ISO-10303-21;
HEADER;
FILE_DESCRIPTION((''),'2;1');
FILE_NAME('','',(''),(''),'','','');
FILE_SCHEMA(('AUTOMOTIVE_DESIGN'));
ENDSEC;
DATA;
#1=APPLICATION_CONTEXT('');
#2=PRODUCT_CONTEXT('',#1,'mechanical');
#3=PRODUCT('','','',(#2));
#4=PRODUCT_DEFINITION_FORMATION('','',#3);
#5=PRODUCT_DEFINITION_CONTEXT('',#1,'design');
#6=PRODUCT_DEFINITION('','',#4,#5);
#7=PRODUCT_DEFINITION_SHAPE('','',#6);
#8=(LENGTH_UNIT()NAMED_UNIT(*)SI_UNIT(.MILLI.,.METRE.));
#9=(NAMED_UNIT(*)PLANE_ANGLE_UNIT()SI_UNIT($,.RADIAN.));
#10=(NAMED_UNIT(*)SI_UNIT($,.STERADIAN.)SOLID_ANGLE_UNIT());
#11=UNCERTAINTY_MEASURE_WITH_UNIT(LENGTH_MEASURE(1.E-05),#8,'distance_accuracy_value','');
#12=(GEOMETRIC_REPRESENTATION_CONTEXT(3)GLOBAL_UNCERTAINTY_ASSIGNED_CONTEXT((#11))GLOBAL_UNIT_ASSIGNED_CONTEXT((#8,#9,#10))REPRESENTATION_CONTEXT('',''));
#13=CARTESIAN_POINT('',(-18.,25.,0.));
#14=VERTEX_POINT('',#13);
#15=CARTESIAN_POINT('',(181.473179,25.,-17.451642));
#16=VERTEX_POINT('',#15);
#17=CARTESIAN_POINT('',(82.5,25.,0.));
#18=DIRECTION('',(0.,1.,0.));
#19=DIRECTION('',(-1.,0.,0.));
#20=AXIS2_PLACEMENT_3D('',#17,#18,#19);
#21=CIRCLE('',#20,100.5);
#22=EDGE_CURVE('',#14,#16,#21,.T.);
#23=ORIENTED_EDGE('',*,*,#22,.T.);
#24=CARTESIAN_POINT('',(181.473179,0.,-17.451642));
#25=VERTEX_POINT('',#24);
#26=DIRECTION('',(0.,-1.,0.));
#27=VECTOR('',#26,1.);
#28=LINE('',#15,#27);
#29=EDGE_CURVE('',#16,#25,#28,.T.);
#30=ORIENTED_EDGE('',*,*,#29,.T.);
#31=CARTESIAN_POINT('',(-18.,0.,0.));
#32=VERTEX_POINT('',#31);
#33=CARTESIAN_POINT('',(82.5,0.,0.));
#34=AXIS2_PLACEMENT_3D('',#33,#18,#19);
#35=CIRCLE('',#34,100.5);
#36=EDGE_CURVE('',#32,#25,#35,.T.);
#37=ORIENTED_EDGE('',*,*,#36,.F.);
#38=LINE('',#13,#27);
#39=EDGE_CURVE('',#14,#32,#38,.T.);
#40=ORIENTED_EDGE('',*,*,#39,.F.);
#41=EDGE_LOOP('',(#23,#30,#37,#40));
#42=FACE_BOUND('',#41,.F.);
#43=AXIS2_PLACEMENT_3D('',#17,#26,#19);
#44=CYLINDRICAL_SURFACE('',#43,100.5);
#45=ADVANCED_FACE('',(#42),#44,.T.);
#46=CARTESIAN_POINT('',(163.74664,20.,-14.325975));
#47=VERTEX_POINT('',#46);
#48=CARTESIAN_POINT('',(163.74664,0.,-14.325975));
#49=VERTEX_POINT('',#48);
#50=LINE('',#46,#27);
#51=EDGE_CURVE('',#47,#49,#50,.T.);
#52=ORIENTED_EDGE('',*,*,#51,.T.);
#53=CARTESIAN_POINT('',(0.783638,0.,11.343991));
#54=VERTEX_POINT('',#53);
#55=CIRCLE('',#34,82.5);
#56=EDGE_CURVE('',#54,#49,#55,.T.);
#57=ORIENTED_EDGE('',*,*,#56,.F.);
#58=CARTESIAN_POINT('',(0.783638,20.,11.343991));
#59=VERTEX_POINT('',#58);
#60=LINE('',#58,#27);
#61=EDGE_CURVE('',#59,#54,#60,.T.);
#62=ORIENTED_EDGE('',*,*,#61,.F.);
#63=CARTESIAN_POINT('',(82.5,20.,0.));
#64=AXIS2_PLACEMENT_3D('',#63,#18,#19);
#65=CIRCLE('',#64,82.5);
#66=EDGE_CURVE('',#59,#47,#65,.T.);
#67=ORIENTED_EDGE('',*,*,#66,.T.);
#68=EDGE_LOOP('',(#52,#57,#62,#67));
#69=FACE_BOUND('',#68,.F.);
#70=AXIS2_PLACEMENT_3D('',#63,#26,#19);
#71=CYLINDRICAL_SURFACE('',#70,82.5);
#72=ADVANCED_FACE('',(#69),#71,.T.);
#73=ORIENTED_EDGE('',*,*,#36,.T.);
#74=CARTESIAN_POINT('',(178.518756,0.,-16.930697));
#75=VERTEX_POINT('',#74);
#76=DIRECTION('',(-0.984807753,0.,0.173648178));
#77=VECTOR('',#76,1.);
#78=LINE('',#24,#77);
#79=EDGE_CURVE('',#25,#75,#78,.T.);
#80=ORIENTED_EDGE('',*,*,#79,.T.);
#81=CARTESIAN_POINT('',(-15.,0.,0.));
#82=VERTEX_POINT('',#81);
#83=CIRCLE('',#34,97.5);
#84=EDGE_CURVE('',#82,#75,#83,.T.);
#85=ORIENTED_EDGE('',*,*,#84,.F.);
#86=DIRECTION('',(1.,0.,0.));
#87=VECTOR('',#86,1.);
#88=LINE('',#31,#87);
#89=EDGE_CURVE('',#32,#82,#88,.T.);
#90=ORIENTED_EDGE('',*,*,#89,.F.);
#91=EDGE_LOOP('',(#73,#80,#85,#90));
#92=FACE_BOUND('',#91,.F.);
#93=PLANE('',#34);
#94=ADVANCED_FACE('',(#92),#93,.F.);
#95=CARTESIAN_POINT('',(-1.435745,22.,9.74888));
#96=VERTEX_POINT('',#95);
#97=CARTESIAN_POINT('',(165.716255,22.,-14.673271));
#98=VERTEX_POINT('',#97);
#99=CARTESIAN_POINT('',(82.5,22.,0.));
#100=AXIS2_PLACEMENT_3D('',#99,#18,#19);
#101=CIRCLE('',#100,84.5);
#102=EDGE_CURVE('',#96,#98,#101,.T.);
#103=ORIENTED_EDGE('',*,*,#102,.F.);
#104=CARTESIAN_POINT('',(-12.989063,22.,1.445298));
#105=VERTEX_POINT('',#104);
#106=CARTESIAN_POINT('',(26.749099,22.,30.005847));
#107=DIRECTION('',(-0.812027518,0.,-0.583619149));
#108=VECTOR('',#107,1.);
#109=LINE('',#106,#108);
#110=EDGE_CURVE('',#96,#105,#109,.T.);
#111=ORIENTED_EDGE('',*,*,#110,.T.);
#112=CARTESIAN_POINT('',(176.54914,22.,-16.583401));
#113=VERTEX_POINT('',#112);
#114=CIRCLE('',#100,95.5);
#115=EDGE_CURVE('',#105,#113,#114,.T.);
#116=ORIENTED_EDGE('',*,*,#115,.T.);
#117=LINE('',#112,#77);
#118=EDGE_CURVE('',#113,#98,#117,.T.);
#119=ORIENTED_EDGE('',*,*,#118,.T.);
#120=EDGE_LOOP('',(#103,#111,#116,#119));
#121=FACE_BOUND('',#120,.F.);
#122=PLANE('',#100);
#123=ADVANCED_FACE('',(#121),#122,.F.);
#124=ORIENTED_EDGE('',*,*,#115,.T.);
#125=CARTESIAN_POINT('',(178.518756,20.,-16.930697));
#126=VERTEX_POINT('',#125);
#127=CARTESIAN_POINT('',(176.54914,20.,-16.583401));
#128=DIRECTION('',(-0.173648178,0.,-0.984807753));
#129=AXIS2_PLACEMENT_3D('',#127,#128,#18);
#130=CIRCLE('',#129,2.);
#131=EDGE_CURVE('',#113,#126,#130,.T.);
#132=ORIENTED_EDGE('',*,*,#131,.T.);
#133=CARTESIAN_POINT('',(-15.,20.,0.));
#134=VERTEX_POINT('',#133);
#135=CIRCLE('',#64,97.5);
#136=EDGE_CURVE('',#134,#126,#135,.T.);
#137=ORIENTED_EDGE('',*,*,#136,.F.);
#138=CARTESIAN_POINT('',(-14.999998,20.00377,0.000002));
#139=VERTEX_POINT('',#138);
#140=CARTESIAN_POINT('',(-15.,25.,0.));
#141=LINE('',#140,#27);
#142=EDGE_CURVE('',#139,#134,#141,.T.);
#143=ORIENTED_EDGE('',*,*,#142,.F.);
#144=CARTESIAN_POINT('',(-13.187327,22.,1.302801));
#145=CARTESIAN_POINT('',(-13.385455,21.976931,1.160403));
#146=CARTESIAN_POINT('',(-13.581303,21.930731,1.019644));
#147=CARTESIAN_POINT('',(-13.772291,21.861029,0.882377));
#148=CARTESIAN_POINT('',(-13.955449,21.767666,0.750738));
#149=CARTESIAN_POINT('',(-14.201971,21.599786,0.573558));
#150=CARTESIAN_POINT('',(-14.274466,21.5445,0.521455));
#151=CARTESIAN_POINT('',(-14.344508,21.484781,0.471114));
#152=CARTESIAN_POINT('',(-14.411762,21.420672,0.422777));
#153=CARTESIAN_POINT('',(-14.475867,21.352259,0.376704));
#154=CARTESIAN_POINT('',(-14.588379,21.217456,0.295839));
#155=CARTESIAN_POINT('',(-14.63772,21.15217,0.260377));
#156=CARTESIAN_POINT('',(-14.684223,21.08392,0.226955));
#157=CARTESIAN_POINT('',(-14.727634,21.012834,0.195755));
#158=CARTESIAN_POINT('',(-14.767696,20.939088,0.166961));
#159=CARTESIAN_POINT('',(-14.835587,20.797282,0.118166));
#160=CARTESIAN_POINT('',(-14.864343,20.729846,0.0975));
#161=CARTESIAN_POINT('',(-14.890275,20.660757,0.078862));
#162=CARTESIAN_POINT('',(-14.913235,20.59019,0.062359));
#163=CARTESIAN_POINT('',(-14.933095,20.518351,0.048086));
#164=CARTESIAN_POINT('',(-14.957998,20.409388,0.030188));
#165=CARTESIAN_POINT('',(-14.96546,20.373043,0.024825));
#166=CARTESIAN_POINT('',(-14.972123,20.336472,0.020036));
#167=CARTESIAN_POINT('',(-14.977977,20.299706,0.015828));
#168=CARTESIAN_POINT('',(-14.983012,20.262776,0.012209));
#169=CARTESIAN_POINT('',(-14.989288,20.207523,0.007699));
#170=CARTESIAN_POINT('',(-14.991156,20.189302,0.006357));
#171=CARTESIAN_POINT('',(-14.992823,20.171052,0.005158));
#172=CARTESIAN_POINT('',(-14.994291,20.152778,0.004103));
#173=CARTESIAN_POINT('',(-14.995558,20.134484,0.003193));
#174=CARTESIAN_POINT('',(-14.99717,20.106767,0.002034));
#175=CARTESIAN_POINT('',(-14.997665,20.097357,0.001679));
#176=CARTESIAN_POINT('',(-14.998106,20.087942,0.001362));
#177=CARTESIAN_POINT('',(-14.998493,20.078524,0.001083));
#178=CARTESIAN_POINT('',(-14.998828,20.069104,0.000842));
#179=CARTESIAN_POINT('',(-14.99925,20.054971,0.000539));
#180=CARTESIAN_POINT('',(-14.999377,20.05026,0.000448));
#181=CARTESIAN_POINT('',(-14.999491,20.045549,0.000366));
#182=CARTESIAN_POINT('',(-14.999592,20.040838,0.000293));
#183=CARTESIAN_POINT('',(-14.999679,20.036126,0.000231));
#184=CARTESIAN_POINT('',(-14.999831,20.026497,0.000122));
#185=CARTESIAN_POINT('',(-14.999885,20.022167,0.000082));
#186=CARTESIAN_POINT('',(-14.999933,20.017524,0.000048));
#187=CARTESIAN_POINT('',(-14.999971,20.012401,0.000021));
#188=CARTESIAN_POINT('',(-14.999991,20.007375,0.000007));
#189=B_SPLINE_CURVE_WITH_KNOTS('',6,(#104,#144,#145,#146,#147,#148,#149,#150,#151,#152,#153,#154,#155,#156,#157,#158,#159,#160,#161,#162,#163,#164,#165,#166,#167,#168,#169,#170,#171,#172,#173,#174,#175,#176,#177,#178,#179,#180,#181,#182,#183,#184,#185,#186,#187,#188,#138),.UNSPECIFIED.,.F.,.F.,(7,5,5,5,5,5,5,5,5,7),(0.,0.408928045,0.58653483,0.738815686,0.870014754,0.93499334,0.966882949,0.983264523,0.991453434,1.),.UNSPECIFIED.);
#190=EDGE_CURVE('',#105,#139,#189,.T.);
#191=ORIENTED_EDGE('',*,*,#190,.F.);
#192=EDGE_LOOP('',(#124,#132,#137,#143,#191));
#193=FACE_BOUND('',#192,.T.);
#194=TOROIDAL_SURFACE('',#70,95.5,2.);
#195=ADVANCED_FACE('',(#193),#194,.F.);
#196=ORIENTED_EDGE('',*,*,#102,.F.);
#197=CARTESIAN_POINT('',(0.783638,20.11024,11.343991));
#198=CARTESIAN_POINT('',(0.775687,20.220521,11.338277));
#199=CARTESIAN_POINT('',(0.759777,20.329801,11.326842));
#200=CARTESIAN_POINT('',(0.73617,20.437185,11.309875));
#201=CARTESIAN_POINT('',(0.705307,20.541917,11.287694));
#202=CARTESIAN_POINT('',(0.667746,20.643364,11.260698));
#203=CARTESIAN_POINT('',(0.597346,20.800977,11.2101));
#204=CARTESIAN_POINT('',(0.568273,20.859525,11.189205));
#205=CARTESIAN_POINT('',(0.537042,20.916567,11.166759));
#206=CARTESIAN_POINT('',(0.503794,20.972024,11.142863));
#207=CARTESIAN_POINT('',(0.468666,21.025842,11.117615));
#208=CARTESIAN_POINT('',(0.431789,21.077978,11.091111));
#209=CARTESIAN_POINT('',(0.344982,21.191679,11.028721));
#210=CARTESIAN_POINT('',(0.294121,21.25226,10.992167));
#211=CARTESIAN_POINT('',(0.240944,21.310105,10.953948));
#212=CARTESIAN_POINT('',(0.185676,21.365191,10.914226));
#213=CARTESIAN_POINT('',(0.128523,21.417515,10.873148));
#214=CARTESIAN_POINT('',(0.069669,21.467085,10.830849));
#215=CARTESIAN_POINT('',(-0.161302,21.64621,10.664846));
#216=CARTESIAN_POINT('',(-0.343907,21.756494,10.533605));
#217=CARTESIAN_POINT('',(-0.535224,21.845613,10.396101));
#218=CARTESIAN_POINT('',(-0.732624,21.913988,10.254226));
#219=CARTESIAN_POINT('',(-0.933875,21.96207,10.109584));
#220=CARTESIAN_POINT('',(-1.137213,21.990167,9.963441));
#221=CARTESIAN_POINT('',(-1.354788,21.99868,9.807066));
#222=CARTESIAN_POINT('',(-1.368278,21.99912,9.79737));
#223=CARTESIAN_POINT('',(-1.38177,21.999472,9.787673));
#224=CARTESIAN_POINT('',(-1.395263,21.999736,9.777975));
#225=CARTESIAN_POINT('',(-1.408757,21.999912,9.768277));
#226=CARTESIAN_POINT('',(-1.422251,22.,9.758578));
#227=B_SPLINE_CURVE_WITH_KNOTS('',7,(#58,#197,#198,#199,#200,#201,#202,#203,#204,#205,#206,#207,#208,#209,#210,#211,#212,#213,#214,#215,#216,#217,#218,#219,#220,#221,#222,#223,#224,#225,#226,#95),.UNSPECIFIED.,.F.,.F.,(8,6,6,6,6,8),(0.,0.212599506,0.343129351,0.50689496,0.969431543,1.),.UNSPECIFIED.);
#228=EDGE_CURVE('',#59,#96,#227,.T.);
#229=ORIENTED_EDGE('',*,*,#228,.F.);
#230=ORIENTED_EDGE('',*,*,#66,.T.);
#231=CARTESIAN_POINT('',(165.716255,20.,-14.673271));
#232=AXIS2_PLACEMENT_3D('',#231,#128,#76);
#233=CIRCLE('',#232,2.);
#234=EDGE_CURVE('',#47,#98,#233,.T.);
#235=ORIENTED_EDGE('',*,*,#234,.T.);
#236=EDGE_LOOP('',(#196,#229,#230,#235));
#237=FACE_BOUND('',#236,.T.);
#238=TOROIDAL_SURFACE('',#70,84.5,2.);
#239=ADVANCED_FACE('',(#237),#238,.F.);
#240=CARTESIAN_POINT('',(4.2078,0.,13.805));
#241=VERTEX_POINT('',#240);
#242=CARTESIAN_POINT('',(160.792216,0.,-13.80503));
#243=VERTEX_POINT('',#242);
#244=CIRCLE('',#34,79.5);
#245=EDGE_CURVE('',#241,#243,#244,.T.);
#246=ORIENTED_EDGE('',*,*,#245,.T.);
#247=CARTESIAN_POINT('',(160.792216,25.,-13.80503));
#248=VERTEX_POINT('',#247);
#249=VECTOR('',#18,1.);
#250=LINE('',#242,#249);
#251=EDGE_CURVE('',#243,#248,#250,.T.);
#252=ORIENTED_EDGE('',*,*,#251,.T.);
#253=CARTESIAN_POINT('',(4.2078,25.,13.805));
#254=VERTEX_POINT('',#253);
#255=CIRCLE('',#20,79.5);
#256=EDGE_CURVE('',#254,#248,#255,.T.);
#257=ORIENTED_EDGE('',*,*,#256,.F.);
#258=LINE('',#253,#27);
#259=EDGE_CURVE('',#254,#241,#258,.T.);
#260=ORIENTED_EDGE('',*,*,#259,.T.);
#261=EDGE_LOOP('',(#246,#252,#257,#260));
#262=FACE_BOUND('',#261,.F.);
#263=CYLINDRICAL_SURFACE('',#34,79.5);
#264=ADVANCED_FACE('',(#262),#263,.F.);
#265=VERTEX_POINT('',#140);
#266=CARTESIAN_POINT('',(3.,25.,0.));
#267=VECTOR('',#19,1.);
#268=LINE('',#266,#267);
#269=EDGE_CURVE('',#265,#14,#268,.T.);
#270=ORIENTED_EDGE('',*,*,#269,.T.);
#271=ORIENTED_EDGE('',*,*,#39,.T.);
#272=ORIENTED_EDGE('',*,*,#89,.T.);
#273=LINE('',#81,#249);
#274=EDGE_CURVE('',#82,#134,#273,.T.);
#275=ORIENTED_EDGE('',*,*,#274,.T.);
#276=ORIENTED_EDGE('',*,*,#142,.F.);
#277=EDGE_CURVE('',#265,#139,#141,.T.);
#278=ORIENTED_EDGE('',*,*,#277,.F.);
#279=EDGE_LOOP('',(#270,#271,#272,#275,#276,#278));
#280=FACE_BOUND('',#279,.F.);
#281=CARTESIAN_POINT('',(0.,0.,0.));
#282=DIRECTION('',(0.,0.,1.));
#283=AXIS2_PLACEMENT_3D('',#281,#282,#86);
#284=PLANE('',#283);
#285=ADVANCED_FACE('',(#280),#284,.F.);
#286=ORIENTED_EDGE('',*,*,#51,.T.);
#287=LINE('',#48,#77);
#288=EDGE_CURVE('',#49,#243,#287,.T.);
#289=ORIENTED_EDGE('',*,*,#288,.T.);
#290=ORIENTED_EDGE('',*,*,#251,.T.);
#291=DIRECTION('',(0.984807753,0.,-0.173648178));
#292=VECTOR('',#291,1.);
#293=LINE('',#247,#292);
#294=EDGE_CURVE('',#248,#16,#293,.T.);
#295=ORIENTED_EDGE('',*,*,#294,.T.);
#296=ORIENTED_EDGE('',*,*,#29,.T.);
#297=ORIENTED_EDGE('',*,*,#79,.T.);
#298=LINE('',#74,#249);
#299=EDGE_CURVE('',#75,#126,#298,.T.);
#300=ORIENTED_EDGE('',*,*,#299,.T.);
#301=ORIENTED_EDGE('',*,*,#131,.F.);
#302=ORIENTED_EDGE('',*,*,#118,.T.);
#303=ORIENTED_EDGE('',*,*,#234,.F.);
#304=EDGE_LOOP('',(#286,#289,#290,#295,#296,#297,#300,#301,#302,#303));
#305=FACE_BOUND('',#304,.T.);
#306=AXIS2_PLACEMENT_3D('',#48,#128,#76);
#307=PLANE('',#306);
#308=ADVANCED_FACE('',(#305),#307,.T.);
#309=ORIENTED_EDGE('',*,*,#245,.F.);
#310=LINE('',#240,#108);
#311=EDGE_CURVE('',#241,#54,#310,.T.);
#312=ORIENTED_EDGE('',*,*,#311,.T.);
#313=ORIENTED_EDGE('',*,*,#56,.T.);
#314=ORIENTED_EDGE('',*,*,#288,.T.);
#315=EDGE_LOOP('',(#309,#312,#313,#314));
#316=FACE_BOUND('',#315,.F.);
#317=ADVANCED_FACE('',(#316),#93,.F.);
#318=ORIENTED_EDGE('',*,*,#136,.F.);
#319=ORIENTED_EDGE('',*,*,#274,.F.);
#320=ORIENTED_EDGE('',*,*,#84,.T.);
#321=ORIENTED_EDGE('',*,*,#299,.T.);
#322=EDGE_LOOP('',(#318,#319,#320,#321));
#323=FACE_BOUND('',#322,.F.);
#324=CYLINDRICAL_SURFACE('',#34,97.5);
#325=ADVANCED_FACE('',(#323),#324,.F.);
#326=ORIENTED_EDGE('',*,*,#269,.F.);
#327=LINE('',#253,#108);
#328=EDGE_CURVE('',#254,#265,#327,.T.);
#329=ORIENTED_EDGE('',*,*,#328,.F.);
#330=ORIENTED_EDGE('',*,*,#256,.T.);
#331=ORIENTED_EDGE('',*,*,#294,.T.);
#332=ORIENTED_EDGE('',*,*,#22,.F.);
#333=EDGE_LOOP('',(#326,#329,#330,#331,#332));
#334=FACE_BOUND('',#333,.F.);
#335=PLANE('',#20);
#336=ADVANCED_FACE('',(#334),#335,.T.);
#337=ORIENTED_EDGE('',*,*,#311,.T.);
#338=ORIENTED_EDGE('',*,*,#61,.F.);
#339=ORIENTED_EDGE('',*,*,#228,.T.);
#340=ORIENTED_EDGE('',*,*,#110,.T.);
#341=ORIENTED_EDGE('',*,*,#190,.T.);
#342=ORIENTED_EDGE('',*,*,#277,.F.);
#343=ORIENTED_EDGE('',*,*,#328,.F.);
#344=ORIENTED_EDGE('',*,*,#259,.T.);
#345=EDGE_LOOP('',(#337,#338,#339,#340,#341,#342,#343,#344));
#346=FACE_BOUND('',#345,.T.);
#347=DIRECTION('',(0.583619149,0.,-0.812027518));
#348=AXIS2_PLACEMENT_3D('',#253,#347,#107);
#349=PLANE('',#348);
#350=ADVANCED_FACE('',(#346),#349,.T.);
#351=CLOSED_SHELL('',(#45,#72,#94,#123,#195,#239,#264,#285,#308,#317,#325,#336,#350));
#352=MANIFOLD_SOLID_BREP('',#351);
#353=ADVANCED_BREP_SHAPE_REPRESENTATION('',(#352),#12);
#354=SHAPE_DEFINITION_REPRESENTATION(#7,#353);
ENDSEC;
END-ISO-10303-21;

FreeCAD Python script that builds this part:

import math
import FreeCAD as App
import Part
import Sketcher
from FreeCAD import Vector

doc = App.newDocument("Part")
params = doc.addObject("Spreadsheet::Sheet", "Params")
for row, (alias, value) in enumerate([
    ("sketch1_radius", "2 mm"),
    ("sketch1_width", "3 mm"),
    ("sketch1_width2", "21 mm"),
    ("sketch1_height", "25 mm"),
    ("revolution_angle", "190 deg"),
    ("sketch2_radius", "79.5 mm"),
    ("sketch2_width", "18 mm"),
    ("pocket1_length", "25 mm"),
], start=1):
    params.set(f"A{row}", alias)
    params.set(f"B{row}", "=" + value)
    params.setAlias(f"B{row}", alias)

body = doc.addObject("PartDesign::Body", "Body")

sketch1 = doc.addObject("Sketcher::SketchObject", "Sketch")
body.addObject(sketch1)
sketch1.AttachmentSupport = (doc.XY_Plane, [""])
sketch1.MapMode = "FlatFace"
sketch1.addGeometry([
    Part.LineSegment(Vector(-18, 0, 0), Vector(-15, 0, 0)),
    Part.LineSegment(Vector(-15, 0, 0), Vector(-15, 20, 0)),
    Part.ArcOfCircle(Part.Circle(Vector(-13, 20, 0), Vector(0, 0, 1), 2), math.radians(90), math.radians(180)),
    Part.LineSegment(Vector(-13, 22, 0), Vector(-2, 22, 0)),
    Part.ArcOfCircle(Part.Circle(Vector(-2, 20, 0), Vector(0, 0, 1), 2), math.radians(0), math.radians(90)),
    Part.LineSegment(Vector(0, 20, 0), Vector(0, 0, 0)),
    Part.LineSegment(Vector(0, 0, 0), Vector(3, 0, 0)),
    Part.LineSegment(Vector(3, 0, 0), Vector(3, 25, 0)),
    Part.LineSegment(Vector(3, 25, 0), Vector(-18, 25, 0)),
    Part.LineSegment(Vector(-18, 25, 0), Vector(-18, 0, 0)),
], False)
sketch1.addGeometry(Part.LineSegment(Vector(82.5, 0, 0), Vector(82.5, 25, 0)), True)
sketch1.addConstraint([
    Sketcher.Constraint("Coincident", 0, 2, 1, 1),
    Sketcher.Constraint("Tangent", 1, 2, 2, 2),
    Sketcher.Constraint("Tangent", 2, 1, 3, 1),
    Sketcher.Constraint("Tangent", 3, 2, 4, 2),
    Sketcher.Constraint("Tangent", 4, 1, 5, 1),
    Sketcher.Constraint("Coincident", 5, 2, 6, 1),
    Sketcher.Constraint("Coincident", 6, 2, 7, 1),
    Sketcher.Constraint("Coincident", 7, 2, 8, 1),
    Sketcher.Constraint("Coincident", 8, 2, 9, 1),
    Sketcher.Constraint("Coincident", 9, 2, 0, 1),
    Sketcher.Constraint("Horizontal", 0),
    Sketcher.Constraint("Vertical", 1),
    Sketcher.Constraint("Horizontal", 3),
    Sketcher.Constraint("Vertical", 5),
    Sketcher.Constraint("Horizontal", 6),
    Sketcher.Constraint("Vertical", 7),
    Sketcher.Constraint("Horizontal", 8),
    Sketcher.Constraint("Vertical", 9),
    Sketcher.Constraint("Vertical", 10),
    Sketcher.Constraint("Coincident", 5, 2, -1, 1),
    Sketcher.Constraint("Equal", 2, 4),
    Sketcher.Constraint("PointOnObject", 0, 2, -1),
    Sketcher.Constraint("PointOnObject", 10, 1, -1),
    Sketcher.Constraint("Horizontal", 8, 2, 10, 2),
    Sketcher.Constraint("Equal", 0, 6),
    Sketcher.Constraint("Radius", 2, 2.0),
    Sketcher.Constraint("DistanceX", 0, 1, 0, 2, 3.0),
    Sketcher.Constraint("DistanceX", 8, 2, 8, 1, 21.0),
    Sketcher.Constraint("DistanceY", 7, 1, 7, 2, 25.0),
    Sketcher.Constraint("DistanceY", -1, 1, 2, 1, 22.0),
    Sketcher.Constraint("DistanceX", -1, 1, 10, 1, 82.5),
])
sketch1.setExpression("Constraints[25]", "Params.sketch1_radius")
sketch1.setExpression("Constraints[26]", "Params.sketch1_width")
sketch1.setExpression("Constraints[27]", "Params.sketch1_width2")
sketch1.setExpression("Constraints[28]", "Params.sketch1_height")
revolution = doc.addObject("PartDesign::Revolution", "Revolution")
body.addObject(revolution)
revolution.Profile = sketch1
revolution.ReferenceAxis = (sketch1, ["Axis0"])
revolution.setExpression("Angle", "Params.revolution_angle")

sketch2 = doc.addObject("Sketcher::SketchObject", "Sketch001")
body.addObject(sketch2)
sketch2.AttachmentSupport = (doc.XZ_Plane, [""])
sketch2.MapMode = "FlatFace"
sketch2.AttachmentOffset = App.Placement(Vector(0, 0, -25), App.Rotation())
sketch2.addGeometry([
    Part.ArcOfCircle(Part.Circle(Vector(82, 0, 0), Vector(0, 0, 1), 80), math.radians(170), math.radians(180)),
    Part.LineSegment(Vector(3, 0, 0), Vector(-15, 0, 0)),
    Part.LineSegment(Vector(-15, 0, 0), Vector(4, 14, 0)),
], False)
sketch2.addConstraint([
    Sketcher.Constraint("Coincident", 0, 2, 1, 1),
    Sketcher.Constraint("Coincident", 1, 2, 2, 1),
    Sketcher.Constraint("Coincident", 2, 2, 0, 1),
    Sketcher.Constraint("Horizontal", 1),
    Sketcher.Constraint("PointOnObject", 0, 3, -1),
    Sketcher.Constraint("PointOnObject", 0, 2, -1),
    Sketcher.Constraint("Radius", 0, 79.5),
    Sketcher.Constraint("DistanceX", 1, 2, 1, 1, 18.0),
    Sketcher.Constraint("DistanceX", -1, 1, 0, 2, 3.0),
    Sketcher.Constraint("DistanceY", -1, 1, 2, 2, 13.805),
])
sketch2.setExpression("Constraints[6]", "Params.sketch2_radius")
sketch2.setExpression("Constraints[7]", "Params.sketch2_width")
pocket1 = doc.addObject("PartDesign::Pocket", "Pocket")
body.addObject(pocket1)
pocket1.Profile = sketch2
pocket1.setExpression("Length", "Params.pocket1_length")
pocket1.Reversed = True

doc.recompute()
